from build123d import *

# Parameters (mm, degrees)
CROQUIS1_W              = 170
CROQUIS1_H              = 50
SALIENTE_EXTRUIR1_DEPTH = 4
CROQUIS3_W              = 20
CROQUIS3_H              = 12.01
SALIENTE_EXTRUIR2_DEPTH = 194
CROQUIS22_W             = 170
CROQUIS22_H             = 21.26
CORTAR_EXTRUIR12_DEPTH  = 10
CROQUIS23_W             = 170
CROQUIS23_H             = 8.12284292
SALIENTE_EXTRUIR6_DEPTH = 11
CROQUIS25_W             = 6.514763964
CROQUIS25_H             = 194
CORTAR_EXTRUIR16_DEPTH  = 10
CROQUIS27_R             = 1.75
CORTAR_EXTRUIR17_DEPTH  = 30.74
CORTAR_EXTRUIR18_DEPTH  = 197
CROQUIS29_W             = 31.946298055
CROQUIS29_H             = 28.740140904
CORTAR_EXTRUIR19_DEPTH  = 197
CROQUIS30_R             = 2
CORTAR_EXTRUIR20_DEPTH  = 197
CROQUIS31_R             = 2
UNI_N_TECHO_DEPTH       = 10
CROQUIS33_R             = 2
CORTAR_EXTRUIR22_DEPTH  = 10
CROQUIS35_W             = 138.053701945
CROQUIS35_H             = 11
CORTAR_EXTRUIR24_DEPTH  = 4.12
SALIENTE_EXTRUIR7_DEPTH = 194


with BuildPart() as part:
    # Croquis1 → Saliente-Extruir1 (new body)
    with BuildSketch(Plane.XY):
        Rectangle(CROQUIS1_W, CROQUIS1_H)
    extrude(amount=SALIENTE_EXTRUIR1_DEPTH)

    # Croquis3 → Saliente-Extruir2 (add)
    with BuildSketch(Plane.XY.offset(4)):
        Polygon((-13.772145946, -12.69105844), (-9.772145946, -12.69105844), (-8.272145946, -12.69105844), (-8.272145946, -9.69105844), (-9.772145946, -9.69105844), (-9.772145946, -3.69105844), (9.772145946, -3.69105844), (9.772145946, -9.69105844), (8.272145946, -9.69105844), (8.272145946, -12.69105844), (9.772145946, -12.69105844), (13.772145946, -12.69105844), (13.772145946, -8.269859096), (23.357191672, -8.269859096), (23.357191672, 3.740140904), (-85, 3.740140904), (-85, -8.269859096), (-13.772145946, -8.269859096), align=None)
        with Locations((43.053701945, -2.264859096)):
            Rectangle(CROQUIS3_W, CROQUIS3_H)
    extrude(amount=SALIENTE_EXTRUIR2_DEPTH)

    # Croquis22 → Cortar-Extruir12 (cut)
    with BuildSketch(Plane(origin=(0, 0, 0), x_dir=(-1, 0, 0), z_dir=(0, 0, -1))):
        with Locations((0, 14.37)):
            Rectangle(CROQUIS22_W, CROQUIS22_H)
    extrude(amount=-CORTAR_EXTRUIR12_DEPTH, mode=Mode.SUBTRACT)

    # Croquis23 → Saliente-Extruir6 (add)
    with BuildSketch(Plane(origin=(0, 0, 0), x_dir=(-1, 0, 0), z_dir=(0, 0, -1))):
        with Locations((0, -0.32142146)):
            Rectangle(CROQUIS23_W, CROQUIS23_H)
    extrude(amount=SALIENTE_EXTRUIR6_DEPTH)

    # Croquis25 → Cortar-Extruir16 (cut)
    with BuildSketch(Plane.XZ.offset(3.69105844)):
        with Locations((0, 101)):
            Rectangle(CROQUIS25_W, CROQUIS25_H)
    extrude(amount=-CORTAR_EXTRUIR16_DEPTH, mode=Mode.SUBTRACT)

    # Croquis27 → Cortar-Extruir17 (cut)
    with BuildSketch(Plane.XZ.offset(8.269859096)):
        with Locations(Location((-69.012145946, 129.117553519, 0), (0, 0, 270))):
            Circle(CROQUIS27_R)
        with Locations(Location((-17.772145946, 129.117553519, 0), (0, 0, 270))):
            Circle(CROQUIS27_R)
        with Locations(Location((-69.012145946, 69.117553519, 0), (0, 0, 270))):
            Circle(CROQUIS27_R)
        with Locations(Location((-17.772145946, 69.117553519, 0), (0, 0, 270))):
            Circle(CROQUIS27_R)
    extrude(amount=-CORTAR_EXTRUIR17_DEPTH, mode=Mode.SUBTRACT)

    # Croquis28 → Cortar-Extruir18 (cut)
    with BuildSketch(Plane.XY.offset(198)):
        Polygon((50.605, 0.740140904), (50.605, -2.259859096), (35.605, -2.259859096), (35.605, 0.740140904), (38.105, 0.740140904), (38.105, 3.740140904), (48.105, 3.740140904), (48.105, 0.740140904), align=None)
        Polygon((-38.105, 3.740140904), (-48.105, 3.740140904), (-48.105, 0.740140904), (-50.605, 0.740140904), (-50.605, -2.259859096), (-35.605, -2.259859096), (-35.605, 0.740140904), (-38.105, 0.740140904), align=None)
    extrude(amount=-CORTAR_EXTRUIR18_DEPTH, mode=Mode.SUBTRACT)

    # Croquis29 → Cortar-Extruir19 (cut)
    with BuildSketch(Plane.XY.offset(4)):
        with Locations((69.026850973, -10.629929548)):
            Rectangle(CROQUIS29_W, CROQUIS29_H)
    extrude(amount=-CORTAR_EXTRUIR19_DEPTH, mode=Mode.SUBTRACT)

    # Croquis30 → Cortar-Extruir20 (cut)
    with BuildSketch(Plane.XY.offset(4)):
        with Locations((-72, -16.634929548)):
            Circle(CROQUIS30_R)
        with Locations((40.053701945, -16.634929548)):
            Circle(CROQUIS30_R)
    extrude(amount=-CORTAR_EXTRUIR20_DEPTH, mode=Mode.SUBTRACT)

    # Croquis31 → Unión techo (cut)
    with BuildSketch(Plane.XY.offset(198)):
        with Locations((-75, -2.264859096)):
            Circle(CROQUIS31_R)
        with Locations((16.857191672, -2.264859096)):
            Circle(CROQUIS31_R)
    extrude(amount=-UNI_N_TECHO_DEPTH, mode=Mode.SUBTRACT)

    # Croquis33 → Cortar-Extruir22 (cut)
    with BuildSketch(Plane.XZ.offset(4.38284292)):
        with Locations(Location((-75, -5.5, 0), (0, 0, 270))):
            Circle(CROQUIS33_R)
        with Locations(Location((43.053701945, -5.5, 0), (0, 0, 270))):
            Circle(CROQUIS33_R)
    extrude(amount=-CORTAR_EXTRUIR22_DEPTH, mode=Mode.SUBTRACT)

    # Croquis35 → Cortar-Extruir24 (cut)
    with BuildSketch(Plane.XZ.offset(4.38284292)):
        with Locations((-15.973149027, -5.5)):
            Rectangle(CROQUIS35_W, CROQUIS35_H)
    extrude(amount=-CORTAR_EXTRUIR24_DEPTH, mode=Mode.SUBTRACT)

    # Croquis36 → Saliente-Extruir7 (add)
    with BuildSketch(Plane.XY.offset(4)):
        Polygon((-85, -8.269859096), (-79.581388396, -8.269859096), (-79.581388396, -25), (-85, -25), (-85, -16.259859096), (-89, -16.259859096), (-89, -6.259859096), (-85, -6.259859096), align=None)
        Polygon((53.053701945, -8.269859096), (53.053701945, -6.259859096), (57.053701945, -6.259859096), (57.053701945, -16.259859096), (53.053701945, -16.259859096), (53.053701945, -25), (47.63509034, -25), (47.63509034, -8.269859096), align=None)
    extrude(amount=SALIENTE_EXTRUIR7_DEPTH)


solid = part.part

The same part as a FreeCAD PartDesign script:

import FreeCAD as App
import Part
import Sketcher

V = App.Vector

doc = App.newDocument("Part")
params = doc.addObject("Spreadsheet::Sheet", "Params")
for row, (alias, value) in enumerate([
    ("sketch1_width", "170 mm"),
    ("sketch1_height", "50 mm"),
    ("pad1_length", "4 mm"),
    ("sketch2_width", "20 mm"),
    ("sketch2_height", "3 mm"),
    ("sketch2_height2", "6 mm"),
    ("sketch2_width2", "5.5 mm"),
    ("sketch2_width3", "1.5 mm"),
    ("pad2_length", "194 mm"),
    ("sketch3_width", "170 mm"),
    ("sketch3_height", "21.26 mm"),
    ("pocket1_length", "10 mm"),
    ("sketch4_width", "170 mm"),
    ("pad3_length", "11 mm"),
    ("sketch5_height", "194 mm"),
    ("pocket2_length", "10 mm"),
    ("sketch6_diameter", "3.5 mm"),
    ("pocket3_length", "30.74 mm"),
    ("sketch7_width", "10 mm"),
    ("sketch7_width2", "15 mm"),
    ("sketch7_height", "3 mm"),
    ("pocket4_length", "197 mm"),
    ("pocket5_length", "197 mm"),
    ("sketch9_diameter", "4 mm"),
    ("pocket6_length", "197 mm"),
    ("sketch10_diameter", "4 mm"),
    ("pocket7_length", "10 mm"),
    ("sketch11_diameter", "4 mm"),
    ("pocket8_length", "10 mm"),
    ("sketch12_height", "11 mm"),
    ("pocket9_length", "4.12 mm"),
    ("sketch13_width", "4 mm"),
    ("sketch13_height", "10 mm"),
    ("sketch13_height2", "2.01 mm"),
    ("pad4_length", "194 mm"),
], start=1):
    params.set(f"A{row}", alias)
    params.set(f"B{row}", "=" + value)
    params.setAlias(f"B{row}", alias)

body = doc.addObject("PartDesign::Body", "Body")

sketch1 = doc.addObject("Sketcher::SketchObject", "Sketch")
body.addObject(sketch1)
sketch1.AttachmentSupport = (doc.XY_Plane, [""])
sketch1.MapMode = "FlatFace"
sketch1.addGeometry(Part.LineSegment(V(-85, 25, 0), V(-85, -25, 0)), False)
sketch1.addGeometry(Part.LineSegment(V(-85, -25, 0), V(85, -25, 0)), False)
sketch1.addGeometry(Part.LineSegment(V(85, -25, 0), V(85, 25, 0)), False)
sketch1.addGeometry(Part.LineSegment(V(85, 25, 0), V(-85, 25, 0)), False)
sketch1.addConstraint(Sketcher.Constraint("Coincident", 0, 2, 1, 1))
sketch1.addConstraint(Sketcher.Constraint("Coincident", 1, 2, 2, 1))
sketch1.addConstraint(Sketcher.Constraint("Coincident", 2, 2, 3, 1))
sketch1.addConstraint(Sketcher.Constraint("Coincident", 3, 2, 0, 1))
sketch1.addConstraint(Sketcher.Constraint("Vertical", 0))
sketch1.addConstraint(Sketcher.Constraint("Horizontal", 1))
sketch1.addConstraint(Sketcher.Constraint("Vertical", 2))
sketch1.addConstraint(Sketcher.Constraint("Horizontal", 3))
sketch1.addConstraint(Sketcher.Constraint("Symmetric", 0, 2, 2, 2, -1, 1))
sketch1.addConstraint(Sketcher.Constraint("DistanceX", 1, 1, 1, 2, 170.0))
sketch1.addConstraint(Sketcher.Constraint("DistanceY", 0, 2, 0, 1, 50.0))
sketch1.setExpression("Constraints[9]", "Params.sketch1_width")
sketch1.setExpression("Constraints[10]", "Params.sketch1_height")
pad1 = doc.addObject("PartDesign::Pad", "Pad")
body.addObject(pad1)
pad1.Profile = sketch1
pad1.setExpression("Length", "Params.pad1_length")

sketch2 = doc.addObject("Sketcher::SketchObject", "Sketch001")
body.addObject(sketch2)
sketch2.AttachmentSupport = (doc.XY_Plane, [""])
sketch2.MapMode = "FlatFace"
sketch2.AttachmentOffset = App.Placement(V(0, 0, 4), App.Rotation())
sketch2.addGeometry(Part.LineSegment(V(-13.772146, -12.691058, 0), V(-8.272146, -12.691058, 0)), False)
sketch2.addGeometry(Part.LineSegment(V(-8.272146, -12.691058, 0), V(-8.272146, -9.691058, 0)), False)
sketch2.addGeometry(Part.LineSegment(V(-8.272146, -9.691058, 0), V(-9.772146, -9.691058, 0)), False)
sketch2.addGeometry(Part.LineSegment(V(-9.772146, -9.691058, 0), V(-9.772146, -3.691058, 0)), False)
sketch2.addGeometry(Part.LineSegment(V(-9.772146, -3.691058, 0), V(9.772146, -3.691058, 0)), False)
sketch2.addGeometry(Part.LineSegment(V(9.772146, -3.691058, 0), V(9.772146, -9.691058, 0)), False)
sketch2.addGeometry(Part.LineSegment(V(9.772146, -9.691058, 0), V(8.272146, -9.691058, 0)), False)
sketch2.addGeometry(Part.LineSegment(V(8.272146, -9.691058, 0), V(8.272146, -12.691058, 0)), False)
sketch2.addGeometry(Part.LineSegment(V(8.272146, -12.691058, 0), V(13.772146, -12.691058, 0)), False)
sketch2.addGeometry(Part.LineSegment(V(13.772146, -12.691058, 0), V(13.772146, -8.269859, 0)), False)
sketch2.addGeometry(Part.LineSegment(V(13.772146, -8.269859, 0), V(23.357192, -8.269859, 0)), False)
sketch2.addGeometry(Part.LineSegment(V(23.357192, -8.269859, 0), V(23.357192, 3.740141, 0)), False)
sketch2.addGeometry(Part.LineSegment(V(23.357192, 3.740141, 0), V(-85, 3.740141, 0)), False)
sketch2.addGeometry(Part.LineSegment(V(-85, 3.740141, 0), V(-85, -8.269859, 0)), False)
sketch2.addGeometry(Part.LineSegment(V(-85, -8.269859, 0), V(-13.772146, -8.269859, 0)), False)
sketch2.addGeometry(Part.LineSegment(V(-13.772146, -8.269859, 0), V(-13.772146, -12.691058, 0)), False)
sketch2.addGeometry(Part.LineSegment(V(33.053702, 3.740141, 0), V(33.053702, -8.269859, 0)), False)
sketch2.addGeometry(Part.LineSegment(V(33.053702, -8.269859, 0), V(53.053702, -8.269859, 0)), False)
sketch2.addGeometry(Part.LineSegment(V(53.053702, -8.269859, 0), V(53.053702, 3.740141, 0)), False)
sketch2.addGeometry(Part.LineSegment(V(53.053702, 3.740141, 0), V(33.053702, 3.740141, 0)), False)
sketch2.addConstraint(Sketcher.Constraint("Coincident", 0, 2, 1, 1))
sketch2.addConstraint(Sketcher.Constraint("Coincident", 1, 2, 2, 1))
sketch2.addConstraint(Sketcher.Constraint("Coincident", 2, 2, 3, 1))
sketch2.addConstraint(Sketcher.Constraint("Coincident", 3, 2, 4, 1))
sketch2.addConstraint(Sketcher.Constraint("Coincident", 4, 2, 5, 1))
sketch2.addConstraint(Sketcher.Constraint("Coincident", 5, 2, 6, 1))
sketch2.addConstraint(Sketcher.Constraint("Coincident", 6, 2, 7, 1))
sketch2.addConstraint(Sketcher.Constraint("Coincident", 7, 2, 8, 1))
sketch2.addConstraint(Sketcher.Constraint("Coincident", 8, 2, 9, 1))
sketch2.addConstraint(Sketcher.Constraint("Coincident", 9, 2, 10, 1))
sketch2.addConstraint(Sketcher.Constraint("Coincident", 10, 2, 11, 1))
sketch2.addConstraint(Sketcher.Constraint("Coincident", 11, 2, 12, 1))
sketch2.addConstraint(Sketcher.Constraint("Coincident", 12, 2, 13, 1))
sketch2.addConstraint(Sketcher.Constraint("Coincident", 13, 2, 14, 1))
sketch2.addConstraint(Sketcher.Constraint("Coincident", 14, 2, 15, 1))
sketch2.addConstraint(Sketcher.Constraint("Coincident", 15, 2, 0, 1))
sketch2.addConstraint(Sketcher.Constraint("Coincident", 16, 2, 17, 1))
sketch2.addConstraint(Sketcher.Constraint("Coincident", 17, 2, 18, 1))
sketch2.addConstraint(Sketcher.Constraint("Coincident", 18, 2, 19, 1))
sketch2.addConstraint(Sketcher.Constraint("Coincident", 19, 2, 16, 1))
sketch2.addConstraint(Sketcher.Constraint("Horizontal", 0))
sketch2.addConstraint(Sketcher.Constraint("Vertical", 1))
sketch2.addConstraint(Sketcher.Constraint("Horizontal", 2))
sketch2.addConstraint(Sketcher.Constraint("Vertical", 3))
sketch2.addConstraint(Sketcher.Constraint("Horizontal", 4))
sketch2.addConstraint(Sketcher.Constraint("Vertical", 5))
sketch2.addConstraint(Sketcher.Constraint("Horizontal", 6))
sketch2.addConstraint(Sketcher.Constraint("Vertical", 7))
sketch2.addConstraint(Sketcher.Constraint("Horizontal", 8))
sketch2.addConstraint(Sketcher.Constraint("Vertical", 9))
sketch2.addConstraint(Sketcher.Constraint("Horizontal", 10))
sketch2.addConstraint(Sketcher.Constraint("Vertical", 11))
sketch2.addConstraint(Sketcher.Constraint("Horizontal", 12))
sketch2.addConstraint(Sketcher.Constraint("Vertical", 13))
sketch2.addConstraint(Sketcher.Constraint("Horizontal", 14))
sketch2.addConstraint(Sketcher.Constraint("Vertical", 15))
sketch2.addConstraint(Sketcher.Constraint("Vertical", 16))
sketch2.addConstraint(Sketcher.Constraint("Horizontal", 17))
sketch2.addConstraint(Sketcher.Constraint("Vertical", 18))
sketch2.addConstraint(Sketcher.Constraint("Horizontal", 19))
sketch2.addConstraint(Sketcher.Constraint("Symmetric", 2, 2, 5, 2, -2))
sketch2.addConstraint(Sketcher.Constraint("Symmetric", 0, 2, 7, 2, -2))
sketch2.addConstraint(Sketcher.Constraint("Symmetric", 9, 2, 14, 2, -2))
sketch2.addConstraint(Sketcher.Constraint("Horizontal", 14, 2, 16, 2))
sketch2.addConstraint(Sketcher.Constraint("Horizontal", 12, 2, 18, 2))
sketch2.addConstraint(Sketcher.Constraint("DistanceX", 17, 1, 17, 2, 20.0))
sketch2.addConstraint(Sketcher.Constraint("DistanceY", 1, 1, 1, 2, 3.0))
sketch2.addConstraint(Sketcher.Constraint("DistanceY", 3, 1, 3, 2, 6.0))
sketch2.addConstraint(Sketcher.Constraint("DistanceX", 0, 1, 0, 2, 5.5))
sketch2.addConstraint(Sketcher.Constraint("DistanceX", 2, 2, 2, 1, 1.5))
sketch2.addConstraint(Sketcher.Constraint("DistanceX", 12, 2, -1, 1, 85.0))
sketch2.addConstraint(Sketcher.Constraint("DistanceY", 11, 1, 11, 2, 12.01))
sketch2.addConstraint(Sketcher.Constraint("DistanceY", 9, 1, 9, 2, 4.421199))
sketch2.addConstraint(Sketcher.Constraint("DistanceX", 4, 1, 4, 2, 19.544292))
sketch2.addConstraint(Sketcher.Constraint("DistanceX", 12, 2, 12, 1, 108.357192))
sketch2.addConstraint(Sketcher.Constraint("DistanceX", -1, 1, 16, 2, 33.053702))
sketch2.addConstraint(Sketcher.Constraint("DistanceY", 0, 2, -1, 1, 12.691058))
sketch2.setExpression("Constraints[45]", "Params.sketch2_width")
sketch2.setExpression("Constraints[46]", "Params.sketch2_height")
sketch2.setExpression("Constraints[47]", "Params.sketch2_height2")
sketch2.setExpression("Constraints[48]", "Params.sketch2_width2")
sketch2.setExpression("Constraints[49]", "Params.sketch2_width3")
pad2 = doc.addObject("PartDesign::Pad", "Pad001")
body.addObject(pad2)
pad2.Profile = sketch2
pad2.setExpression("Length", "Params.pad2_length")

sketch3 = doc.addObject("Sketcher::SketchObject", "Sketch002")
body.addObject(sketch3)
sketch3.AttachmentSupport = (doc.XY_Plane, [""])
sketch3.MapMode = "FlatFace"
sketch3.addGeometry(Part.LineSegment(V(85, 25, 0), V(85, 3.74, 0)), False)
sketch3.addGeometry(Part.LineSegment(V(85, 3.74, 0), V(-85, 3.74, 0)), False)
sketch3.addGeometry(Part.LineSegment(V(-85, 3.74, 0), V(-85, 25, 0)), False)
sketch3.addGeometry(Part.LineSegment(V(-85, 25, 0), V(85, 25, 0)), False)
sketch3.addConstraint(Sketcher.Constraint("Coincident", 0, 2, 1, 1))
sketch3.addConstraint(Sketcher.Constraint("Coincident", 1, 2, 2, 1))
sketch3.addConstraint(Sketcher.Constraint("Coincident", 2, 2, 3, 1))
sketch3.addConstraint(Sketcher.Constraint("Coincident", 3, 2, 0, 1))
sketch3.addConstraint(Sketcher.Constraint("Vertical", 0))
sketch3.addConstraint(Sketcher.Constraint("Horizontal", 1))
sketch3.addConstraint(Sketcher.Constraint("Vertical", 2))
sketch3.addConstraint(Sketcher.Constraint("Horizontal", 3))
sketch3.addConstraint(Sketcher.Constraint("DistanceX", 1, 2, 1, 1, 170.0))
sketch3.addConstraint(Sketcher.Constraint("DistanceX", -1, 1, 0, 2, 85.0))
sketch3.addConstraint(Sketcher.Constraint("DistanceY", -1, 1, 2, 2, 25.0))
sketch3.addConstraint(Sketcher.Constraint("DistanceY", 0, 2, 0, 1, 21.26))
sketch3.setExpression("Constraints[8]", "Params.sketch3_width")
sketch3.setExpression("Constraints[11]", "Params.sketch3_height")
pocket1 = doc.addObject("PartDesign::Pocket", "Pocket")
body.addObject(pocket1)
pocket1.Profile = sketch3
pocket1.setExpression("Length", "Params.pocket1_length")
pocket1.Reversed = True

sketch4 = doc.addObject("Sketcher::SketchObject", "Sketch003")
body.addObject(sketch4)
sketch4.AttachmentSupport = (doc.XY_Plane, [""])
sketch4.MapMode = "FlatFace"
sketch4.addGeometry(Part.LineSegment(V(85, 3.74, 0), V(85, -4.382843, 0)), False)
sketch4.addGeometry(Part.LineSegment(V(85, -4.382843, 0), V(-85, -4.382843, 0)), False)
sketch4.addGeometry(Part.LineSegment(V(-85, -4.382843, 0), V(-85, 3.74, 0)), False)
sketch4.addGeometry(Part.LineSegment(V(-85, 3.74, 0), V(85, 3.74, 0)), False)
sketch4.addConstraint(Sketcher.Constraint("Coincident", 0, 2, 1, 1))
sketch4.addConstraint(Sketcher.Constraint("Coincident", 1, 2, 2, 1))
sketch4.addConstraint(Sketcher.Constraint("Coincident", 2, 2, 3, 1))
sketch4.addConstraint(Sketcher.Constraint("Coincident", 3, 2, 0, 1))
sketch4.addConstraint(Sketcher.Constraint("Vertical", 0))
sketch4.addConstraint(Sketcher.Constraint("Horizontal", 1))
sketch4.addConstraint(Sketcher.Constraint("Vertical", 2))
sketch4.addConstraint(Sketcher.Constraint("Horizontal", 3))
sketch4.addConstraint(Sketcher.Constraint("DistanceX", 1, 2, 1, 1, 170.0))
sketch4.addConstraint(Sketcher.Constraint("DistanceX", -1, 1, 0, 2, 85.0))
sketch4.addConstraint(Sketcher.Constraint("DistanceY", -1, 1, 2, 2, 3.74))
sketch4.addConstraint(Sketcher.Constraint("DistanceY", 0, 2, 0, 1, 8.122843))
sketch4.setExpression("Constraints[8]", "Params.sketch4_width")
pad3 = doc.addObject("PartDesign::Pad", "Pad002")
body.addObject(pad3)
pad3.Profile = sketch4
pad3.setExpression("Length", "Params.pad3_length")
pad3.Reversed = True

sketch5 = doc.addObject("Sketcher::SketchObject", "Sketch004")
body.addObject(sketch5)
sketch5.AttachmentSupport = (doc.XZ_Plane, [""])
sketch5.MapMode = "FlatFace"
sketch5.AttachmentOffset = App.Placement(V(0, 0, 3.691058), App.Rotation())
sketch5.addGeometry(Part.LineSegment(V(-3.257382, 198, 0), V(-3.257382, 4, 0)), False)
sketch5.addGeometry(Part.LineSegment(V(-3.257382, 4, 0), V(3.257382, 4, 0)), False)
sketch5.addGeometry(Part.LineSegment(V(3.257382, 4, 0), V(3.257382, 198, 0)), False)
sketch5.addGeometry(Part.LineSegment(V(3.257382, 198, 0), V(-3.257382, 198, 0)), False)
sketch5.addConstraint(Sketcher.Constraint("Coincident", 0, 2, 1, 1))
sketch5.addConstraint(Sketcher.Constraint("Coincident", 1, 2, 2, 1))
sketch5.addConstraint(Sketcher.Constraint("Coincident", 2, 2, 3, 1))
sketch5.addConstraint(Sketcher.Constraint("Coincident", 3, 2, 0, 1))
sketch5.addConstraint(Sketcher.Constraint("Vertical", 0))
sketch5.addConstraint(Sketcher.Constraint("Horizontal", 1))
sketch5.addConstraint(Sketcher.Constraint("Vertical", 2))
sketch5.addConstraint(Sketcher.Constraint("Horizontal", 3))
sketch5.addConstraint(Sketcher.Constraint("DistanceY", 0, 2, 0, 1, 194.0))
sketch5.addConstraint(Sketcher.Constraint("DistanceY", -1, 1, 0, 2, 4.0))
sketch5.addConstraint(Sketcher.Constraint("DistanceX", 1, 1, 1, 2, 6.514764))
sketch5.addConstraint(Sketcher.Constraint("DistanceX", 0, 2, -1, 1, 3.257382))
sketch5.setExpression("Constraints[8]", "Params.sketch5_height")
pocket2 = doc.addObject("PartDesign::Pocket", "Pocket001")
body.addObject(pocket2)
pocket2.Profile = sketch5
pocket2.setExpression("Length", "Params.pocket2_length")

sketch6 = doc.addObject("Sketcher::SketchObject", "Sketch005")
body.addObject(sketch6)
sketch6.AttachmentSupport = (doc.XZ_Plane, [""])
sketch6.MapMode = "FlatFace"
sketch6.AttachmentOffset = App.Placement(V(0, 0, 8.269859), App.Rotation())
sketch6.addGeometry(Part.Circle(V(-69.012146, 129.117554, 0), V(0, 0, 1), 1.75), False)
sketch6.addGeometry(Part.Circle(V(-17.772146, 129.117554, 0), V(0, 0, 1), 1.75), False)
sketch6.addGeometry(Part.Circle(V(-69.012146, 69.117554, 0), V(0, 0, 1), 1.75), False)
sketch6.addGeometry(Part.Circle(V(-17.772146, 69.117554, 0), V(0, 0, 1), 1.75), False)
sketch6.addConstraint(Sketcher.Constraint("Equal", 0, 1))
sketch6.addConstraint(Sketcher.Constraint("Equal", 1, 2))
sketch6.addConstraint(Sketcher.Constraint("Equal", 2, 3))
sketch6.addConstraint(Sketcher.Constraint("Horizontal", 0, 3, 1, 3))
sketch6.addConstraint(Sketcher.Constraint("Horizontal", 2, 3, 3, 3))
sketch6.addConstraint(Sketcher.Constraint("Vertical", 0, 3, 2, 3))
sketch6.addConstraint(Sketcher.Constraint("Vertical", 1, 3, 3, 3))
sketch6.addConstraint(Sketcher.Constraint("Diameter", 0, 3.5))
sketch6.addConstraint(Sketcher.Constraint("DistanceY", 2, 3, 0, 3, 60.0))
sketch6.addConstraint(Sketcher.Constraint("DistanceX", 0, 3, 1, 3, 51.24))
sketch6.addConstraint(Sketcher.Constraint("DistanceX", 0, 3, -1, 1, 69.012146))
sketch6.addConstraint(Sketcher.Constraint("DistanceY", -1, 1, 0, 3, 129.117554))
sketch6.setExpression("Constraints[7]", "Params.sketch6_diameter")
pocket3 = doc.addObject("PartDesign::Pocket", "Pocket002")
body.addObject(pocket3)
pocket3.Profile = sketch6
pocket3.setExpression("Length", "Params.pocket3_length")

sketch7 = doc.addObject("Sketcher::SketchObject", "Sketch006")
body.addObject(sketch7)
sketch7.AttachmentSupport = (doc.XY_Plane, [""])
sketch7.MapMode = "FlatFace"
sketch7.AttachmentOffset = App.Placement(V(0, 0, 198), App.Rotation())
sketch7.addGeometry(Part.LineSegment(V(50.605, -2.259859, 0), V(50.605, 0.740141, 0)), False)
sketch7.addGeometry(Part.LineSegment(V(50.605, 0.740141, 0), V(48.105, 0.740141, 0)), False)
sketch7.addGeometry(Part.LineSegment(V(48.105, 0.740141, 0), V(48.105, 3.740141, 0)), False)
sketch7.addGeometry(Part.LineSegment(V(48.105, 3.740141, 0), V(38.105, 3.740141, 0)), False)
sketch7.addGeometry(Part.LineSegment(V(38.105, 3.740141, 0), V(38.105, 0.740141, 0)), False)
sketch7.addGeometry(Part.LineSegment(V(38.105, 0.740141, 0), V(35.605, 0.740141, 0)), False)
sketch7.addGeometry(Part.LineSegment(V(35.605, 0.740141, 0), V(35.605, -2.259859, 0)), False)
sketch7.addGeometry(Part.LineSegment(V(35.605, -2.259859, 0), V(50.605, -2.259859, 0)), False)
sketch7.addGeometry(Part.LineSegment(V(-38.105, 3.740141, 0), V(-48.105, 3.740141, 0)), False)
sketch7.addGeometry(Part.LineSegment(V(-48.105, 3.740141, 0), V(-48.105, 0.740141, 0)), False)
sketch7.addGeometry(Part.LineSegment(V(-48.105, 0.740141, 0), V(-50.605, 0.740141, 0)), False)
sketch7.addGeometry(Part.LineSegment(V(-50.605, 0.740141, 0), V(-50.605, -2.259859, 0)), False)
sketch7.addGeometry(Part.LineSegment(V(-50.605, -2.259859, 0), V(-35.605, -2.259859, 0)), False)
sketch7.addGeometry(Part.LineSegment(V(-35.605, -2.259859, 0), V(-35.605, 0.740141, 0)), False)
sketch7.addGeometry(Part.LineSegment(V(-35.605, 0.740141, 0), V(-38.105, 0.740141, 0)), False)
sketch7.addGeometry(Part.LineSegment(V(-38.105, 0.740141, 0), V(-38.105, 3.740141, 0)), False)
sketch7.addConstraint(Sketcher.Constraint("Coincident", 0, 2, 1, 1))
sketch7.addConstraint(Sketcher.Constraint("Coincident", 1, 2, 2, 1))
sketch7.addConstraint(Sketcher.Constraint("Coincident", 2, 2, 3, 1))
sketch7.addConstraint(Sketcher.Constraint("Coincident", 3, 2, 4, 1))
sketch7.addConstraint(Sketcher.Constraint("Coincident", 4, 2, 5, 1))
sketch7.addConstraint(Sketcher.Constraint("Coincident", 5, 2, 6, 1))
sketch7.addConstraint(Sketcher.Constraint("Coincident", 6, 2, 7, 1))
sketch7.addConstraint(Sketcher.Constraint("Coincident", 7, 2, 0, 1))
sketch7.addConstraint(Sketcher.Constraint("Coincident", 8, 2, 9, 1))
sketch7.addConstraint(Sketcher.Constraint("Coincident", 9, 2, 10, 1))
sketch7.addConstraint(Sketcher.Constraint("Coincident", 10, 2, 11, 1))
sketch7.addConstraint(Sketcher.Constraint("Coincident", 11, 2, 12, 1))
sketch7.addConstraint(Sketcher.Constraint("Coincident", 12, 2, 13, 1))
sketch7.addConstraint(Sketcher.Constraint("Coincident", 13, 2, 14, 1))
sketch7.addConstraint(Sketcher.Constraint("Coincident", 14, 2, 15, 1))
sketch7.addConstraint(Sketcher.Constraint("Coincident", 15, 2, 8, 1))
sketch7.addConstraint(Sketcher.Constraint("Vertical", 0))
sketch7.addConstraint(Sketcher.Constraint("Horizontal", 1))
sketch7.addConstraint(Sketcher.Constraint("Vertical", 2))
sketch7.addConstraint(Sketcher.Constraint("Horizontal", 3))
sketch7.addConstraint(Sketcher.Constraint("Vertical", 4))
sketch7.addConstraint(Sketcher.Constraint("Horizontal", 5))
sketch7.addConstraint(Sketcher.Constraint("Vertical", 6))
sketch7.addConstraint(Sketcher.Constraint("Horizontal", 7))
sketch7.addConstraint(Sketcher.Constraint("Horizontal", 8))
sketch7.addConstraint(Sketcher.Constraint("Vertical", 9))
sketch7.addConstraint(Sketcher.Constraint("Horizontal", 10))
sketch7.addConstraint(Sketcher.Constraint("Vertical", 11))
sketch7.addConstraint(Sketcher.Constraint("Horizontal", 12))
sketch7.addConstraint(Sketcher.Constraint("Vertical", 13))
sketch7.addConstraint(Sketcher.Constraint("Horizontal", 14))
sketch7.addConstraint(Sketcher.Constraint("Vertical", 15))
sketch7.addConstraint(Sketcher.Constraint("Symmetric", 2, 2, 8, 2, -2))
sketch7.addConstraint(Sketcher.Constraint("Symmetric", 0, 2, 10, 2, -2))
sketch7.addConstraint(Sketcher.Constraint("Symmetric", 6, 2, 12, 2, -2))
sketch7.addConstraint(Sketcher.Constraint("Symmetric", 4, 2, 14, 2, -2))
sketch7.addConstraint(Sketcher.Constraint("Horizontal", 1, 2, 4, 2))
sketch7.addConstraint(Sketcher.Constraint("Equal", 1, 5))
sketch7.addConstraint(Sketcher.Constraint("Equal", 0, 2))
sketch7.addConstraint(Sketcher.Constraint("DistanceX", 3, 2, 3, 1, 10.0))
sketch7.addConstraint(Sketcher.Constraint("DistanceX", 7, 1, 7, 2, 15.0))
sketch7.addConstraint(Sketcher.Constraint("DistanceY", 0, 1, 0, 2, 3.0))
sketch7.addConstraint(Sketcher.Constraint("DistanceX", 8, 2, 5, 2, 83.71))
sketch7.addConstraint(Sketcher.Constraint("DistanceY", -1, 1, 0, 2, 0.740141))
sketch7.setExpression("Constraints[39]", "Params.sketch7_width")
sketch7.setExpression("Constraints[40]", "Params.sketch7_width2")
sketch7.setExpression("Constraints[41]", "Params.sketch7_height")
pocket4 = doc.addObject("PartDesign::Pocket", "Pocket003")
body.addObject(pocket4)
pocket4.Profile = sketch7
pocket4.setExpression("Length", "Params.pocket4_length")

sketch8 = doc.addObject("Sketcher::SketchObject", "Sketch007")
body.addObject(sketch8)
sketch8.AttachmentSupport = (doc.XY_Plane, [""])
sketch8.MapMode = "FlatFace"
sketch8.AttachmentOffset = App.Placement(V(0, 0, 4), App.Rotation())
sketch8.addGeometry(Part.LineSegment(V(53.053702, 3.740141, 0), V(53.053702, -25, 0)), False)
sketch8.addGeometry(Part.LineSegment(V(53.053702, -25, 0), V(85, -25, 0)), False)
sketch8.addGeometry(Part.LineSegment(V(85, -25, 0), V(85, 3.740141, 0)), False)
sketch8.addGeometry(Part.LineSegment(V(85, 3.740141, 0), V(53.053702, 3.740141, 0)), False)
sketch8.addConstraint(Sketcher.Constraint("Coincident", 0, 2, 1, 1))
sketch8.addConstraint(Sketcher.Constraint("Coincident", 1, 2, 2, 1))
sketch8.addConstraint(Sketcher.Constraint("Coincident", 2, 2, 3, 1))
sketch8.addConstraint(Sketcher.Constraint("Coincident", 3, 2, 0, 1))
sketch8.addConstraint(Sketcher.Constraint("Vertical", 0))
sketch8.addConstraint(Sketcher.Constraint("Horizontal", 1))
sketch8.addConstraint(Sketcher.Constraint("Vertical", 2))
sketch8.addConstraint(Sketcher.Constraint("Horizontal", 3))
sketch8.addConstraint(Sketcher.Constraint("DistanceY", 0, 2, -1, 1, 25.0))
sketch8.addConstraint(Sketcher.Constraint("DistanceX", -1, 1, 1, 2, 85.0))
sketch8.addConstraint(Sketcher.Constraint("DistanceX", 1, 1, 1, 2, 31.946298))
sketch8.addConstraint(Sketcher.Constraint("DistanceY", 0, 2, 0, 1, 28.740141))
pocket5 = doc.addObject("PartDesign::Pocket", "Pocket004")
body.addObject(pocket5)
pocket5.Profile = sketch8
pocket5.setExpression("Length", "Params.pocket5_length")

sketch9 = doc.addObject("Sketcher::SketchObject", "Sketch008")
body.addObject(sketch9)
sketch9.AttachmentSupport = (doc.XY_Plane, [""])
sketch9.MapMode = "FlatFace"
sketch9.AttachmentOffset = App.Placement(V(0, 0, 4), App.Rotation())
sketch9.addGeometry(Part.Circle(V(-72, -16.63493, 0), V(0, 0, 1), 2), False)
sketch9.addGeometry(Part.Circle(V(40.053702, -16.63493, 0), V(0, 0, 1), 2), False)
sketch9.addConstraint(Sketcher.Constraint("Equal", 0, 1))
sketch9.addConstraint(Sketcher.Constraint("Horizontal", 0, 3, 1, 3))
sketch9.addConstraint(Sketcher.Constraint("Diameter", 0, 4.0))
sketch9.addConstraint(Sketcher.Constraint("DistanceX", 0, 3, -1, 1, 72.0))
sketch9.addConstraint(Sketcher.Constraint("DistanceX", -1, 1, 1, 3, 40.053702))
sketch9.addConstraint(Sketcher.Constraint("DistanceY", 0, 3, -1, 1, 16.63493))
sketch9.setExpression("Constraints[2]", "Params.sketch9_diameter")
pocket6 = doc.addObject("PartDesign::Pocket", "Pocket005")
body.addObject(pocket6)
pocket6.Profile = sketch9
pocket6.setExpression("Length", "Params.pocket6_length")

sketch10 = doc.addObject("Sketcher::SketchObject", "Sketch009")
body.addObject(sketch10)
sketch10.AttachmentSupport = (doc.XY_Plane, [""])
sketch10.MapMode = "FlatFace"
sketch10.AttachmentOffset = App.Placement(V(0, 0, 198), App.Rotation())
sketch10.addGeometry(Part.Circle(V(-75, -2.264859, 0), V(0, 0, 1), 2), False)
sketch10.addGeometry(Part.Circle(V(16.857192, -2.264859, 0), V(0, 0, 1), 2), False)
sketch10.addConstraint(Sketcher.Constraint("Equal", 0, 1))
sketch10.addConstraint(Sketcher.Constraint("Horizontal", 0, 3, 1, 3))
sketch10.addConstraint(Sketcher.Constraint("Diameter", 0, 4.0))
sketch10.addConstraint(Sketcher.Constraint("DistanceX", 0, 3, -1, 1, 75.0))
sketch10.addConstraint(Sketcher.Constraint("DistanceY", 0, 3, -1, 1, 2.264859))
sketch10.addConstraint(Sketcher.Constraint("DistanceX", -1, 1, 1, 3, 16.857192))
sketch10.setExpression("Constraints[2]", "Params.sketch10_diameter")
pocket7 = doc.addObject("PartDesign::Pocket", "Pocket006")
body.addObject(pocket7)
pocket7.Profile = sketch10
pocket7.setExpression("Length", "Params.pocket7_length")

sketch11 = doc.addObject("Sketcher::SketchObject", "Sketch010")
body.addObject(sketch11)
sketch11.AttachmentSupport = (doc.XZ_Plane, [""])
sketch11.MapMode = "FlatFace"
sketch11.AttachmentOffset = App.Placement(V(0, 0, 4.382843), App.Rotation())
sketch11.addGeometry(Part.Circle(V(-75, -5.5, 0), V(0, 0, 1), 2), False)
sketch11.addGeometry(Part.Circle(V(43.053702, -5.5, 0), V(0, 0, 1), 2), False)
sketch11.addConstraint(Sketcher.Constraint("Equal", 0, 1))
sketch11.addConstraint(Sketcher.Constraint("Horizontal", 0, 3, 1, 3))
sketch11.addConstraint(Sketcher.Constraint("Diameter", 0, 4.0))
sketch11.addConstraint(Sketcher.Constraint("DistanceX", 0, 3, -1, 1, 75.0))
sketch11.addConstraint(Sketcher.Constraint("DistanceY", 0, 3, -1, 1, 5.5))
sketch11.addConstraint(Sketcher.Constraint("DistanceX", -1, 1, 1, 3, 43.053702))
sketch11.setExpression("Constraints[2]", "Params.sketch11_diameter")
pocket8 = doc.addObject("PartDesign::Pocket", "Pocket007")
body.addObject(pocket8)
pocket8.Profile = sketch11
pocket8.setExpression("Length", "Params.pocket8_length")

sketch12 = doc.addObject("Sketcher::SketchObject", "Sketch011")
body.addObject(sketch12)
sketch12.AttachmentSupport = (doc.XZ_Plane, [""])
sketch12.MapMode = "FlatFace"
sketch12.AttachmentOffset = App.Placement(V(0, 0, 4.382843), App.Rotation())
sketch12.addGeometry(Part.LineSegment(V(-85, 0, 0), V(-85, -11, 0)), False)
sketch12.addGeometry(Part.LineSegment(V(-85, -11, 0), V(53.053702, -11, 0)), False)
sketch12.addGeometry(Part.LineSegment(V(53.053702, -11, 0), V(53.053702, 0, 0)), False)
sketch12.addGeometry(Part.LineSegment(V(53.053702, 0, 0), V(-85, 0, 0)), False)
sketch12.addConstraint(Sketcher.Constraint("Coincident", 0, 2, 1, 1))
sketch12.addConstraint(Sketcher.Constraint("Coincident", 1, 2, 2, 1))
sketch12.addConstraint(Sketcher.Constraint("Coincident", 2, 2, 3, 1))
sketch12.addConstraint(Sketcher.Constraint("Coincident", 3, 2, 0, 1))
sketch12.addConstraint(Sketcher.Constraint("Vertical", 0))
sketch12.addConstraint(Sketcher.Constraint("Horizontal", 1))
sketch12.addConstraint(Sketcher.Constraint("Vertical", 2))
sketch12.addConstraint(Sketcher.Constraint("Horizontal", 3))
sketch12.addConstraint(Sketcher.Constraint("PointOnObject", 2, 2, -1))
sketch12.addConstraint(Sketcher.Constraint("DistanceY", 0, 2, 0, 1, 11.0))
sketch12.addConstraint(Sketcher.Constraint("DistanceX", 0, 2, -1, 1, 85.0))
sketch12.addConstraint(Sketcher.Constraint("DistanceX", 1, 1, 1, 2, 138.053702))
sketch12.setExpression("Constraints[9]", "Params.sketch12_height")
pocket9 = doc.addObject("PartDesign::Pocket", "Pocket008")
body.addObject(pocket9)
pocket9.Profile = sketch12
pocket9.setExpression("Length", "Params.pocket9_length")

sketch13 = doc.addObject("Sketcher::SketchObject", "Sketch012")
body.addObject(sketch13)
sketch13.AttachmentSupport = (doc.XY_Plane, [""])
sketch13.MapMode = "FlatFace"
sketch13.AttachmentOffset = App.Placement(V(0, 0, 4), App.Rotation())
sketch13.addGeometry(Part.LineSegment(V(-79.581388, -8.269859, 0), V(-85, -8.269859, 0)), False)
sketch13.addGeometry(Part.LineSegment(V(-85, -8.269859, 0), V(-85, -6.259859, 0)), False)
sketch13.addGeometry(Part.LineSegment(V(-85, -6.259859, 0), V(-89, -6.259859, 0)), False)
sketch13.addGeometry(Part.LineSegment(V(-89, -6.259859, 0), V(-89, -16.259859, 0)), False)
sketch13.addGeometry(Part.LineSegment(V(-89, -16.259859, 0), V(-85, -16.259859, 0)), False)
sketch13.addGeometry(Part.LineSegment(V(-85, -16.259859, 0), V(-85, -25, 0)), False)
sketch13.addGeometry(Part.LineSegment(V(-85, -25, 0), V(-79.581388, -25, 0)), False)
sketch13.addGeometry(Part.LineSegment(V(-79.581388, -25, 0), V(-79.581388, -8.269859, 0)), False)
sketch13.addGeometry(Part.LineSegment(V(53.053702, -6.259859, 0), V(53.053702, -8.269859, 0)), False)
sketch13.addGeometry(Part.LineSegment(V(53.053702, -8.269859, 0), V(47.63509, -8.269859, 0)), False)
sketch13.addGeometry(Part.LineSegment(V(47.63509, -8.269859, 0), V(47.63509, -25, 0)), False)
sketch13.addGeometry(Part.LineSegment(V(47.63509, -25, 0), V(53.053702, -25, 0)), False)
sketch13.addGeometry(Part.LineSegment(V(53.053702, -25, 0), V(53.053702, -16.259859, 0)), False)
sketch13.addGeometry(Part.LineSegment(V(53.053702, -16.259859, 0), V(57.053702, -16.259859, 0)), False)
sketch13.addGeometry(Part.LineSegment(V(57.053702, -16.259859, 0), V(57.053702, -6.259859, 0)), False)
sketch13.addGeometry(Part.LineSegment(V(57.053702, -6.259859, 0), V(53.053702, -6.259859, 0)), False)
sketch13.addConstraint(Sketcher.Constraint("Coincident", 0, 2, 1, 1))
sketch13.addConstraint(Sketcher.Constraint("Coincident", 1, 2, 2, 1))
sketch13.addConstraint(Sketcher.Constraint("Coincident", 2, 2, 3, 1))
sketch13.addConstraint(Sketcher.Constraint("Coincident", 3, 2, 4, 1))
sketch13.addConstraint(Sketcher.Constraint("Coincident", 4, 2, 5, 1))
sketch13.addConstraint(Sketcher.Constraint("Coincident", 5, 2, 6, 1))
sketch13.addConstraint(Sketcher.Constraint("Coincident", 6, 2, 7, 1))
sketch13.addConstraint(Sketcher.Constraint("Coincident", 7, 2, 0, 1))
sketch13.addConstraint(Sketcher.Constraint("Coincident", 8, 2, 9, 1))
sketch13.addConstraint(Sketcher.Constraint("Coincident", 9, 2, 10, 1))
sketch13.addConstraint(Sketcher.Constraint("Coincident", 10, 2, 11, 1))
sketch13.addConstraint(Sketcher.Constraint("Coincident", 11, 2, 12, 1))
sketch13.addConstraint(Sketcher.Constraint("Coincident", 12, 2, 13, 1))
sketch13.addConstraint(Sketcher.Constraint("Coincident", 13, 2, 14, 1))
sketch13.addConstraint(Sketcher.Constraint("Coincident", 14, 2, 15, 1))
sketch13.addConstraint(Sketcher.Constraint("Coincident", 15, 2, 8, 1))
sketch13.addConstraint(Sketcher.Constraint("Horizontal", 0))
sketch13.addConstraint(Sketcher.Constraint("Vertical", 1))
sketch13.addConstraint(Sketcher.Constraint("Horizontal", 2))
sketch13.addConstraint(Sketcher.Constraint("Vertical", 3))
sketch13.addConstraint(Sketcher.Constraint("Horizontal", 4))
sketch13.addConstraint(Sketcher.Constraint("Vertical", 5))
sketch13.addConstraint(Sketcher.Constraint("Horizontal", 6))
sketch13.addConstraint(Sketcher.Constraint("Vertical", 7))
sketch13.addConstraint(Sketcher.Constraint("Vertical", 8))
sketch13.addConstraint(Sketcher.Constraint("Horizontal", 9))
sketch13.addConstraint(Sketcher.Constraint("Vertical", 10))
sketch13.addConstraint(Sketcher.Constraint("Horizontal", 11))
sketch13.addConstraint(Sketcher.Constraint("Vertical", 12))
sketch13.addConstraint(Sketcher.Constraint("Horizontal", 13))
sketch13.addConstraint(Sketcher.Constraint("Vertical", 14))
sketch13.addConstraint(Sketcher.Constraint("Horizontal", 15))
sketch13.addConstraint(Sketcher.Constraint("Horizontal", 7, 2, 8, 2))
sketch13.addConstraint(Sketcher.Constraint("Horizontal", 6, 2, 10, 2))
sketch13.addConstraint(Sketcher.Constraint("Horizontal", 4, 2, 12, 2))
sketch13.addConstraint(Sketcher.Constraint("Horizontal", 2, 2, 14, 2))
sketch13.addConstraint(Sketcher.Constraint("Vertical", 1, 2, 4, 2))
sketch13.addConstraint(Sketcher.Constraint("Vertical", 8, 2, 11, 2))
sketch13.addConstraint(Sketcher.Constraint("Equal", 6, 9))
sketch13.addConstraint(Sketcher.Constraint("Equal", 4, 13))
sketch13.addConstraint(Sketcher.Constraint("DistanceX", 2, 2, 2, 1, 4.0))
sketch13.addConstraint(Sketcher.Constraint("DistanceY", 3, 2, 3, 1, 10.0))
sketch13.addConstraint(Sketcher.Constraint("DistanceX", 0, 2, -1, 1, 85.0))
sketch13.addConstraint(Sketcher.Constraint("DistanceY", 5, 2, -1, 1, 25.0))
sketch13.addConstraint(Sketcher.Constraint("DistanceY", 1, 1, 1, 2, 2.01))
sketch13.addConstraint(Sketcher.Constraint("DistanceX", 0, 2, 0, 1, 5.418612))
sketch13.addConstraint(Sketcher.Constraint("DistanceY", 5, 2, 5, 1, 8.740141))
sketch13.addConstraint(Sketcher.Constraint("DistanceX", -1, 1, 8, 2, 53.053702))
sketch13.setExpression("Constraints[40]", "Params.sketch13_width")
sketch13.setExpression("Constraints[41]", "Params.sketch13_height")
sketch13.setExpression("Constraints[44]", "Params.sketch13_height2")
pad4 = doc.addObject("PartDesign::Pad", "Pad003")
body.addObject(pad4)
pad4.Profile = sketch13
pad4.setExpression("Length", "Params.pad4_length")

doc.recompute()
